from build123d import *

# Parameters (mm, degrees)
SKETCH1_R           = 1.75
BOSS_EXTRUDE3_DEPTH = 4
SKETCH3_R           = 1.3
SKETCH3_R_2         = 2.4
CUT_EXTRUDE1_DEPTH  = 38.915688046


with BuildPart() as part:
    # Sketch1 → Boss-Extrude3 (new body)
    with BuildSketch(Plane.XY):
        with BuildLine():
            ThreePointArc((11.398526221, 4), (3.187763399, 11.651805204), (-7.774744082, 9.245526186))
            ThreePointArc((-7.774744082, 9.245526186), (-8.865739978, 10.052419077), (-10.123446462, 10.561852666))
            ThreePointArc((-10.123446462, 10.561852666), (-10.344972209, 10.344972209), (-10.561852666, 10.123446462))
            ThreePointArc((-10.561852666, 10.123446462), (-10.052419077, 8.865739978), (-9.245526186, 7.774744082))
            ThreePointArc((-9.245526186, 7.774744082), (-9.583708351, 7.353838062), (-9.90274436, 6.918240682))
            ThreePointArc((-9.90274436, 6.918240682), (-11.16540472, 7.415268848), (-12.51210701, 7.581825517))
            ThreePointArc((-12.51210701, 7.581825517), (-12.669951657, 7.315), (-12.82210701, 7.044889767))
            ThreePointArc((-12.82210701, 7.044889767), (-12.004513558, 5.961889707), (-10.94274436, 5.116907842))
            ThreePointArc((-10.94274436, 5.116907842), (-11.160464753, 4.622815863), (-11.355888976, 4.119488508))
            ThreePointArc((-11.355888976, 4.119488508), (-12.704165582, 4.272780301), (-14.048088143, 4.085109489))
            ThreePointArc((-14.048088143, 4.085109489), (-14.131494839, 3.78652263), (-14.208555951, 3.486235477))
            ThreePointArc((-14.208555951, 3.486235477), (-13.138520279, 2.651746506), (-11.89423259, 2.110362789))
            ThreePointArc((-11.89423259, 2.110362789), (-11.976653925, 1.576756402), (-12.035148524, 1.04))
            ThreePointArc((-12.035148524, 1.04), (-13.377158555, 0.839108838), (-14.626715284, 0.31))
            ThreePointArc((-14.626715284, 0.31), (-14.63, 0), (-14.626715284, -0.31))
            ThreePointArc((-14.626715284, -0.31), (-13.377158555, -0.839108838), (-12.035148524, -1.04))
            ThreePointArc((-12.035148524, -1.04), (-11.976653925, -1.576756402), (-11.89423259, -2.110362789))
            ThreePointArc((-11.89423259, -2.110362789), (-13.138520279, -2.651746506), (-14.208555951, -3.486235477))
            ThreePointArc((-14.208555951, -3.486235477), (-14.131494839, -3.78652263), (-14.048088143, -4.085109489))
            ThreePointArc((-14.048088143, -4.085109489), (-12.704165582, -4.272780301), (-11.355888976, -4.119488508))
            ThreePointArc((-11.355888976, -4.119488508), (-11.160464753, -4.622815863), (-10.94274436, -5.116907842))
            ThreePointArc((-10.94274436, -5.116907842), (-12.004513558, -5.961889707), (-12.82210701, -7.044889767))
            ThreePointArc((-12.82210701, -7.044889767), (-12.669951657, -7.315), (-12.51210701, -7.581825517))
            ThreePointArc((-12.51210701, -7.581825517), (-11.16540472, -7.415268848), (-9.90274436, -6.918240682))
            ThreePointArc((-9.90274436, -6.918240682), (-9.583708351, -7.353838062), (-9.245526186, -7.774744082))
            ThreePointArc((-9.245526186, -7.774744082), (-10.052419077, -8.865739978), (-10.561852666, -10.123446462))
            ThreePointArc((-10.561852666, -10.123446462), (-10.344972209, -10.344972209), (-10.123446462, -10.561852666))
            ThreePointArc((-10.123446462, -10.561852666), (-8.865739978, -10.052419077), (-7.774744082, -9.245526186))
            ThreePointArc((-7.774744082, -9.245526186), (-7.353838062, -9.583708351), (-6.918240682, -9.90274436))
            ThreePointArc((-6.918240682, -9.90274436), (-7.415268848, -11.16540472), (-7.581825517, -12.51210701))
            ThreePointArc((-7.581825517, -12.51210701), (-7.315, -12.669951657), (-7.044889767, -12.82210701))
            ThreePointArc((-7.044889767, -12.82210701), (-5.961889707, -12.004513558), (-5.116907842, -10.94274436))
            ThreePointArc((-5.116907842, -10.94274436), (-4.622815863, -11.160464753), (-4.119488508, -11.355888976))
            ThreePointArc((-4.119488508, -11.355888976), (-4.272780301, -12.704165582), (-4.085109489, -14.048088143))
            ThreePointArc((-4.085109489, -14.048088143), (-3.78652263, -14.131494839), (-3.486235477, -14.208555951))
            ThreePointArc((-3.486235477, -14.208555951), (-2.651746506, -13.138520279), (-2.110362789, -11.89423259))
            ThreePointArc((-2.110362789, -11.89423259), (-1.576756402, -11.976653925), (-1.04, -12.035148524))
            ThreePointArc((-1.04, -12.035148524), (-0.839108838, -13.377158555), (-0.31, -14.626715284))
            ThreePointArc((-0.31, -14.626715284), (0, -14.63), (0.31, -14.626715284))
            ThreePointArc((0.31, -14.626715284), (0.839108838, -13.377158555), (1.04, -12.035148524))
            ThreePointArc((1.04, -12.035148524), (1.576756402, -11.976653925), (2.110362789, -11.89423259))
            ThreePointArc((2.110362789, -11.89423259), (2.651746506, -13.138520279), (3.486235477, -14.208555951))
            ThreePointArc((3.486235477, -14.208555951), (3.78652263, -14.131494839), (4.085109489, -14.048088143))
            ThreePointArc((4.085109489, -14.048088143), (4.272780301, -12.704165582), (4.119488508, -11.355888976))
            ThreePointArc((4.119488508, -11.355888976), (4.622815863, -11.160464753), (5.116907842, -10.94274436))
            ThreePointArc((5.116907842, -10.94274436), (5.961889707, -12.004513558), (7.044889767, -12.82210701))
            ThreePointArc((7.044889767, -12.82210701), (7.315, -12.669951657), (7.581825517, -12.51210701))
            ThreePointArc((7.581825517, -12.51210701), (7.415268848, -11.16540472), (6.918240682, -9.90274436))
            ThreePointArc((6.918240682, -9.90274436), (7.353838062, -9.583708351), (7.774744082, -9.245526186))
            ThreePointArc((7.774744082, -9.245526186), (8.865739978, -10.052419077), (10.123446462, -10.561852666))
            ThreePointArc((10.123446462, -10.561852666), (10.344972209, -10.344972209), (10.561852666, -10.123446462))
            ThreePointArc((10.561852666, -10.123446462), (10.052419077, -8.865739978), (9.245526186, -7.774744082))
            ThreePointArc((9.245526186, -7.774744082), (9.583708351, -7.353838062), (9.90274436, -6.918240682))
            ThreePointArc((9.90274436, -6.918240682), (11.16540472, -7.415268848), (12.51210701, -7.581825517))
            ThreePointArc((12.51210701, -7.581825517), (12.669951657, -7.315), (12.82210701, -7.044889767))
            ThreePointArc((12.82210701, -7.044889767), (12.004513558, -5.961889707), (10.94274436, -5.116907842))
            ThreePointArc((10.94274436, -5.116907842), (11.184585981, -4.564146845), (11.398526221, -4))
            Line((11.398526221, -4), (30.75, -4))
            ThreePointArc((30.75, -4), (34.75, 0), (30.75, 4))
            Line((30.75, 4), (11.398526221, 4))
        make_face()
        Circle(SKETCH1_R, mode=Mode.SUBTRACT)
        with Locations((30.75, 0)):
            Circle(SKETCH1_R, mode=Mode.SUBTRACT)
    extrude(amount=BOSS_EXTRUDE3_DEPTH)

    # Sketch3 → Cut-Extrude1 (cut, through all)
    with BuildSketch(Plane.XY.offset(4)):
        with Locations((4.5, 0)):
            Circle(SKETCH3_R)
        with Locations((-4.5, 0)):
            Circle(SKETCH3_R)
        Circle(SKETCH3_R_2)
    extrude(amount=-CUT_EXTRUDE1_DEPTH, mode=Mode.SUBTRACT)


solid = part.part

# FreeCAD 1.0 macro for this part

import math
import FreeCAD as App
import Part
import Sketcher

V = App.Vector

doc = App.newDocument("Part")
body = doc.addObject("PartDesign::Body", "Body")

sketch1 = doc.addObject("Sketcher::SketchObject", "Sketch")
body.addObject(sketch1)
sketch1.AttachmentSupport = (doc.XY_Plane, [""])
sketch1.MapMode = "FlatFace"
sketch1.addGeometry(Part.ArcOfCircle(Part.Circle(V(0, 0, 0), V(0, 0, 1), 12.1), math.radians(19), math.radians(130)), False)
sketch1.addGeometry(Part.ArcOfCircle(Part.Circle(V(-11.5, 5.3, 0), V(0, 0, 1), 5.4), math.radians(46), math.radians(75)), False)
sketch1.addGeometry(Part.ArcOfCircle(Part.Circle(V(0, 0, 0), V(0, 0, 1), 14.6), math.radians(133.79), math.radians(136.21)), False)
sketch1.addGeometry(Part.ArcOfCircle(Part.Circle(V(-5.3, 11.5, 0), V(0, 0, 1), 5.4), math.radians(-165), math.radians(-136)), False)
sketch1.addGeometry(Part.ArcOfCircle(Part.Circle(V(0, 0, 0), V(0, 0, 1), 12.1), math.radians(139.94), math.radians(145.06)), False)
sketch1.addGeometry(Part.ArcOfCircle(Part.Circle(V(-12.5, 2.2, 0), V(0, 0, 1), 5.4), math.radians(61), math.radians(90)), False)
sketch1.addGeometry(Part.ArcOfCircle(Part.Circle(V(0, 0, 0), V(0, 0, 1), 14.6), math.radians(148.79), math.radians(151.21)), False)
sketch1.addGeometry(Part.ArcOfCircle(Part.Circle(V(-8.1, 9.7, 0), V(0, 0, 1), 5.4), math.radians(-150), math.radians(-121)), False)
sketch1.addGeometry(Part.ArcOfCircle(Part.Circle(V(0, 0, 0), V(0, 0, 1), 12.1), math.radians(154.94), math.radians(160.06)), False)
sketch1.addGeometry(Part.ArcOfCircle(Part.Circle(V(-12.6, -1.1, 0), V(0, 0, 1), 5.4), math.radians(76), math.radians(105)), False)
sketch1.addGeometry(Part.ArcOfCircle(Part.Circle(V(0, 0, 0), V(0, 0, 1), 14.6), math.radians(163.79), math.radians(166.21)), False)
sketch1.addGeometry(Part.ArcOfCircle(Part.Circle(V(-10.4, 7.3, 0), V(0, 0, 1), 5.4), math.radians(-135), math.radians(-106)), False)
sketch1.addGeometry(Part.ArcOfCircle(Part.Circle(V(0, 0, 0), V(0, 0, 1), 12.1), math.radians(169.94), math.radians(175.06)), False)
sketch1.addGeometry(Part.ArcOfCircle(Part.Circle(V(-11.9, -4.4, 0), V(0, 0, 1), 5.4), math.radians(91), math.radians(120)), False)
sketch1.addGeometry(Part.ArcOfCircle(Part.Circle(V(0, 0, 0), V(0, 0, 1), 14.6), math.radians(178.79), math.radians(181.21)), False)
sketch1.addGeometry(Part.ArcOfCircle(Part.Circle(V(-11.9, 4.4, 0), V(0, 0, 1), 5.4), math.radians(-120), math.radians(-91)), False)
sketch1.addGeometry(Part.ArcOfCircle(Part.Circle(V(0, 0, 0), V(0, 0, 1), 12.1), math.radians(-175.06), math.radians(-169.94)), False)
sketch1.addGeometry(Part.ArcOfCircle(Part.Circle(V(-10.4, -7.3, 0), V(0, 0, 1), 5.4), math.radians(106), math.radians(135)), False)
sketch1.addGeometry(Part.ArcOfCircle(Part.Circle(V(0, 0, 0), V(0, 0, 1), 14.6), math.radians(-166.21), math.radians(-163.79)), False)
sketch1.addGeometry(Part.ArcOfCircle(Part.Circle(V(-12.6, 1.1, 0), V(0, 0, 1), 5.4), math.radians(-105), math.radians(-76)), False)
sketch1.addGeometry(Part.ArcOfCircle(Part.Circle(V(0, 0, 0), V(0, 0, 1), 12.1), math.radians(-160.06), math.radians(-154.94)), False)
sketch1.addGeometry(Part.ArcOfCircle(Part.Circle(V(-8.1, -9.7, 0), V(0, 0, 1), 5.4), math.radians(121), math.radians(150)), False)
sketch1.addGeometry(Part.ArcOfCircle(Part.Circle(V(0, 0, 0), V(0, 0, 1), 14.6), math.radians(-151.21), math.radians(-148.79)), False)
sketch1.addGeometry(Part.ArcOfCircle(Part.Circle(V(-12.5, -2.2, 0), V(0, 0, 1), 5.4), math.radians(-90), math.radians(-61)), False)
sketch1.addGeometry(Part.ArcOfCircle(Part.Circle(V(0, 0, 0), V(0, 0, 1), 12.1), math.radians(-145.06), math.radians(-139.94)), False)
sketch1.addGeometry(Part.ArcOfCircle(Part.Circle(V(-5.3, -11.5, 0), V(0, 0, 1), 5.4), math.radians(136), math.radians(165)), False)
sketch1.addGeometry(Part.ArcOfCircle(Part.Circle(V(0, 0, 0), V(0, 0, 1), 14.6), math.radians(-136.21), math.radians(-133.79)), False)
sketch1.addGeometry(Part.ArcOfCircle(Part.Circle(V(-11.5, -5.3, 0), V(0, 0, 1), 5.4), math.radians(-75), math.radians(-46)), False)
sketch1.addGeometry(Part.ArcOfCircle(Part.Circle(V(0, 0, 0), V(0, 0, 1), 12.1), math.radians(-130.06), math.radians(-124.94)), False)
sketch1.addGeometry(Part.ArcOfCircle(Part.Circle(V(-2.2, -12.5, 0), V(0, 0, 1), 5.4), math.radians(151), math.radians(180)), False)
sketch1.addGeometry(Part.ArcOfCircle(Part.Circle(V(0, 0, 0), V(0, 0, 1), 14.6), math.radians(-121.21), math.radians(-118.79)), False)
sketch1.addGeometry(Part.ArcOfCircle(Part.Circle(V(-9.7, -8.1, 0), V(0, 0, 1), 5.4), math.radians(-60), math.radians(-31)), False)
sketch1.addGeometry(Part.ArcOfCircle(Part.Circle(V(0, 0, 0), V(0, 0, 1), 12.1), math.radians(-115.06), math.radians(-109.94)), False)
sketch1.addGeometry(Part.ArcOfCircle(Part.Circle(V(1.1, -12.6, 0), V(0, 0, 1), 5.4), math.radians(166), math.radians(195)), False)
sketch1.addGeometry(Part.ArcOfCircle(Part.Circle(V(0, 0, 0), V(0, 0, 1), 14.6), math.radians(-106.21), math.radians(-103.79)), False)
sketch1.addGeometry(Part.ArcOfCircle(Part.Circle(V(-7.3, -10.4, 0), V(0, 0, 1), 5.4), math.radians(-45), math.radians(-16)), False)
sketch1.addGeometry(Part.ArcOfCircle(Part.Circle(V(0, 0, 0), V(0, 0, 1), 12.1), math.radians(-100.06), math.radians(-94.94)), False)
sketch1.addGeometry(Part.ArcOfCircle(Part.Circle(V(4.4, -11.9, 0), V(0, 0, 1), 5.4), math.radians(-179), math.radians(-150)), False)
sketch1.addGeometry(Part.ArcOfCircle(Part.Circle(V(0, 0, 0), V(0, 0, 1), 14.6), math.radians(-91.21), math.radians(-88.79)), False)
sketch1.addGeometry(Part.ArcOfCircle(Part.Circle(V(-4.4, -11.9, 0), V(0, 0, 1), 5.4), math.radians(-30), math.radians(-1)), False)
sketch1.addGeometry(Part.ArcOfCircle(Part.Circle(V(0, 0, 0), V(0, 0, 1), 12.1), math.radians(-85.06), math.radians(-79.94)), False)
sketch1.addGeometry(Part.ArcOfCircle(Part.Circle(V(7.3, -10.4, 0), V(0, 0, 1), 5.4), math.radians(-164), math.radians(-135)), False)
sketch1.addGeometry(Part.ArcOfCircle(Part.Circle(V(0, 0, 0), V(0, 0, 1), 14.6), math.radians(-76.21), math.radians(-73.79)), False)
sketch1.addGeometry(Part.ArcOfCircle(Part.Circle(V(-1.1, -12.6, 0), V(0, 0, 1), 5.4), math.radians(-15), math.radians(14)), False)
sketch1.addGeometry(Part.ArcOfCircle(Part.Circle(V(0, 0, 0), V(0, 0, 1), 12.1), math.radians(-70.06), math.radians(-64.94)), False)
sketch1.addGeometry(Part.ArcOfCircle(Part.Circle(V(9.7, -8.1, 0), V(0, 0, 1), 5.4), math.radians(-149), math.radians(-120)), False)
sketch1.addGeometry(Part.ArcOfCircle(Part.Circle(V(0, 0, 0), V(0, 0, 1), 14.6), math.radians(-61.21), math.radians(-58.79)), False)
sketch1.addGeometry(Part.ArcOfCircle(Part.Circle(V(2.2, -12.5, 0), V(0, 0, 1), 5.4), math.radians(0), math.radians(29)), False)
sketch1.addGeometry(Part.ArcOfCircle(Part.Circle(V(0, 0, 0), V(0, 0, 1), 12.1), math.radians(-55.06), math.radians(-49.94)), False)
sketch1.addGeometry(Part.ArcOfCircle(Part.Circle(V(11.5, -5.3, 0), V(0, 0, 1), 5.4), math.radians(-134), math.radians(-105)), False)
sketch1.addGeometry(Part.ArcOfCircle(Part.Circle(V(0, 0, 0), V(0, 0, 1), 14.6), math.radians(-46.21), math.radians(-43.79)), False)
sketch1.addGeometry(Part.ArcOfCircle(Part.Circle(V(5.3, -11.5, 0), V(0, 0, 1), 5.4), math.radians(15), math.radians(44)), False)
sketch1.addGeometry(Part.ArcOfCircle(Part.Circle(V(0, 0, 0), V(0, 0, 1), 12.1), math.radians(-40.06), math.radians(-34.94)), False)
sketch1.addGeometry(Part.ArcOfCircle(Part.Circle(V(12.5, -2.2, 0), V(0, 0, 1), 5.4), math.radians(-119), math.radians(-90)), False)
sketch1.addGeometry(Part.ArcOfCircle(Part.Circle(V(0, 0, 0), V(0, 0, 1), 14.6), math.radians(-31.21), math.radians(-28.79)), False)
sketch1.addGeometry(Part.ArcOfCircle(Part.Circle(V(8.1, -9.7, 0), V(0, 0, 1), 5.4), math.radians(30), math.radians(59)), False)
sketch1.addGeometry(Part.ArcOfCircle(Part.Circle(V(0, 0, 0), V(0, 0, 1), 12.1), math.radians(-25.06), math.radians(-19.34)), False)
sketch1.addGeometry(Part.LineSegment(V(11.4, -4, 0), V(30.8, -4, 0)), False)
sketch1.addGeometry(Part.ArcOfCircle(Part.Circle(V(30.8, 0, 0), V(0, 0, 1), 4), math.radians(-90), math.radians(90)), False)
sketch1.addGeometry(Part.LineSegment(V(30.8, 4, 0), V(11.4, 4, 0)), False)
sketch1.addGeometry(Part.Circle(V(0, 0, 0), V(0, 0, 1), 1.8), False)
sketch1.addGeometry(Part.Circle(V(30.8, 0, 0), V(0, 0, 1), 1.8), False)
sketch1.addConstraint(Sketcher.Constraint("Coincident", 0, 2, 1, 1))
sketch1.addConstraint(Sketcher.Constraint("Coincident", 1, 2, 2, 1))
sketch1.addConstraint(Sketcher.Constraint("Coincident", 2, 2, 3, 1))
sketch1.addConstraint(Sketcher.Constraint("Coincident", 3, 2, 4, 1))
sketch1.addConstraint(Sketcher.Constraint("Coincident", 4, 2, 5, 1))
sketch1.addConstraint(Sketcher.Constraint("Coincident", 5, 2, 6, 1))
sketch1.addConstraint(Sketcher.Constraint("Coincident", 6, 2, 7, 1))
sketch1.addConstraint(Sketcher.Constraint("Coincident", 7, 2, 8, 1))
sketch1.addConstraint(Sketcher.Constraint("Coincident", 8, 2, 9, 1))
sketch1.addConstraint(Sketcher.Constraint("Coincident", 9, 2, 10, 1))
sketch1.addConstraint(Sketcher.Constraint("Coincident", 10, 2, 11, 1))
sketch1.addConstraint(Sketcher.Constraint("Coincident", 11, 2, 12, 1))
sketch1.addConstraint(Sketcher.Constraint("Coincident", 12, 2, 13, 1))
sketch1.addConstraint(Sketcher.Constraint("Coincident", 13, 2, 14, 1))
sketch1.addConstraint(Sketcher.Constraint("Coincident", 14, 2, 15, 1))
sketch1.addConstraint(Sketcher.Constraint("Coincident", 15, 2, 16, 1))
sketch1.addConstraint(Sketcher.Constraint("Coincident", 16, 2, 17, 1))
sketch1.addConstraint(Sketcher.Constraint("Coincident", 17, 2, 18, 1))
sketch1.addConstraint(Sketcher.Constraint("Coincident", 18, 2, 19, 1))
sketch1.addConstraint(Sketcher.Constraint("Coincident", 19, 2, 20, 1))
sketch1.addConstraint(Sketcher.Constraint("Coincident", 20, 2, 21, 1))
sketch1.addConstraint(Sketcher.Constraint("Coincident", 21, 2, 22, 1))
sketch1.addConstraint(Sketcher.Constraint("Coincident", 22, 2, 23, 1))
sketch1.addConstraint(Sketcher.Constraint("Coincident", 23, 2, 24, 1))
sketch1.addConstraint(Sketcher.Constraint("Coincident", 24, 2, 25, 1))
sketch1.addConstraint(Sketcher.Constraint("Coincident", 25, 2, 26, 1))
sketch1.addConstraint(Sketcher.Constraint("Coincident", 26, 2, 27, 1))
sketch1.addConstraint(Sketcher.Constraint("Coincident", 27, 2, 28, 1))
sketch1.addConstraint(Sketcher.Constraint("Coincident", 28, 2, 29, 1))
sketch1.addConstraint(Sketcher.Constraint("Coincident", 29, 2, 30, 1))
sketch1.addConstraint(Sketcher.Constraint("Coincident", 30, 2, 31, 1))
sketch1.addConstraint(Sketcher.Constraint("Coincident", 31, 2, 32, 1))
sketch1.addConstraint(Sketcher.Constraint("Coincident", 32, 2, 33, 1))
sketch1.addConstraint(Sketcher.Constraint("Coincident", 33, 2, 34, 1))
sketch1.addConstraint(Sketcher.Constraint("Coincident", 34, 2, 35, 1))
sketch1.addConstraint(Sketcher.Constraint("Coincident", 35, 2, 36, 1))
sketch1.addConstraint(Sketcher.Constraint("Coincident", 36, 2, 37, 1))
sketch1.addConstraint(Sketcher.Constraint("Coincident", 37, 2, 38, 1))
sketch1.addConstraint(Sketcher.Constraint("Coincident", 38, 2, 39, 1))
sketch1.addConstraint(Sketcher.Constraint("Coincident", 39, 2, 40, 1))
sketch1.addConstraint(Sketcher.Constraint("Coincident", 40, 2, 41, 1))
sketch1.addConstraint(Sketcher.Constraint("Coincident", 41, 2, 42, 1))
sketch1.addConstraint(Sketcher.Constraint("Coincident", 42, 2, 43, 1))
sketch1.addConstraint(Sketcher.Constraint("Coincident", 43, 2, 44, 1))
sketch1.addConstraint(Sketcher.Constraint("Coincident", 44, 2, 45, 1))
sketch1.addConstraint(Sketcher.Constraint("Coincident", 45, 2, 46, 1))
sketch1.addConstraint(Sketcher.Constraint("Coincident", 46, 2, 47, 1))
sketch1.addConstraint(Sketcher.Constraint("Coincident", 47, 2, 48, 1))
sketch1.addConstraint(Sketcher.Constraint("Coincident", 48, 2, 49, 1))
sketch1.addConstraint(Sketcher.Constraint("Coincident", 49, 2, 50, 1))
sketch1.addConstraint(Sketcher.Constraint("Coincident", 50, 2, 51, 1))
sketch1.addConstraint(Sketcher.Constraint("Coincident", 51, 2, 52, 1))
sketch1.addConstraint(Sketcher.Constraint("Coincident", 52, 2, 53, 1))
sketch1.addConstraint(Sketcher.Constraint("Coincident", 53, 2, 54, 1))
sketch1.addConstraint(Sketcher.Constraint("Coincident", 54, 2, 55, 1))
sketch1.addConstraint(Sketcher.Constraint("Coincident", 55, 2, 56, 1))
sketch1.addConstraint(Sketcher.Constraint("Coincident", 56, 2, 57, 1))
sketch1.addConstraint(Sketcher.Constraint("Tangent", 57, 2, 58, 1))
sketch1.addConstraint(Sketcher.Constraint("Tangent", 58, 2, 59, 1))
sketch1.addConstraint(Sketcher.Constraint("Coincident", 59, 2, 0, 1))
sketch1.addConstraint(Sketcher.Constraint("Horizontal", 57))
sketch1.addConstraint(Sketcher.Constraint("Horizontal", 59))
sketch1.addConstraint(Sketcher.Constraint("Coincident", 0, 3, -1, 1))
sketch1.addConstraint(Sketcher.Constraint("Coincident", 2, 3, -1, 1))
sketch1.addConstraint(Sketcher.Constraint("Coincident", 4, 3, -1, 1))
sketch1.addConstraint(Sketcher.Constraint("Coincident", 6, 3, -1, 1))
sketch1.addConstraint(Sketcher.Constraint("Coincident", 8, 3, -1, 1))
sketch1.addConstraint(Sketcher.Constraint("Coincident", 10, 3, -1, 1))
sketch1.addConstraint(Sketcher.Constraint("Coincident", 12, 3, -1, 1))
sketch1.addConstraint(Sketcher.Constraint("Coincident", 14, 3, -1, 1))
sketch1.addConstraint(Sketcher.Constraint("Coincident", 16, 3, -1, 1))
sketch1.addConstraint(Sketcher.Constraint("Coincident", 18, 3, -1, 1))
sketch1.addConstraint(Sketcher.Constraint("Coincident", 20, 3, -1, 1))
sketch1.addConstraint(Sketcher.Constraint("Coincident", 22, 3, -1, 1))
sketch1.addConstraint(Sketcher.Constraint("Coincident", 24, 3, -1, 1))
sketch1.addConstraint(Sketcher.Constraint("Coincident", 26, 3, -1, 1))
sketch1.addConstraint(Sketcher.Constraint("Coincident", 28, 3, -1, 1))
sketch1.addConstraint(Sketcher.Constraint("Coincident", 30, 3, -1, 1))
sketch1.addConstraint(Sketcher.Constraint("Coincident", 32, 3, -1, 1))
sketch1.addConstraint(Sketcher.Constraint("Coincident", 34, 3, -1, 1))
sketch1.addConstraint(Sketcher.Constraint("Coincident", 36, 3, -1, 1))
sketch1.addConstraint(Sketcher.Constraint("Coincident", 38, 3, -1, 1))
sketch1.addConstraint(Sketcher.Constraint("Coincident", 40, 3, -1, 1))
sketch1.addConstraint(Sketcher.Constraint("Coincident", 42, 3, -1, 1))
sketch1.addConstraint(Sketcher.Constraint("Coincident", 44, 3, -1, 1))
sketch1.addConstraint(Sketcher.Constraint("Coincident", 46, 3, -1, 1))
sketch1.addConstraint(Sketcher.Constraint("Coincident", 48, 3, -1, 1))
sketch1.addConstraint(Sketcher.Constraint("Coincident", 50, 3, -1, 1))
sketch1.addConstraint(Sketcher.Constraint("Coincident", 52, 3, -1, 1))
sketch1.addConstraint(Sketcher.Constraint("Coincident", 54, 3, -1, 1))
sketch1.addConstraint(Sketcher.Constraint("Coincident", 56, 3, -1, 1))
sketch1.addConstraint(Sketcher.Constraint("Coincident", 60, 3, -1, 1))
sketch1.addConstraint(Sketcher.Constraint("Coincident", 61, 3, 58, 3))
sketch1.addConstraint(Sketcher.Constraint("Equal", 1, 3))
sketch1.addConstraint(Sketcher.Constraint("Equal", 0, 4))
sketch1.addConstraint(Sketcher.Constraint("Equal", 3, 5))
sketch1.addConstraint(Sketcher.Constraint("Equal", 5, 7))
sketch1.addConstraint(Sketcher.Constraint("Equal", 4, 8))
sketch1.addConstraint(Sketcher.Constraint("Equal", 7, 9))
sketch1.addConstraint(Sketcher.Constraint("Equal", 6, 10))
sketch1.addConstraint(Sketcher.Constraint("Equal", 9, 11))
sketch1.addConstraint(Sketcher.Constraint("Equal", 8, 12))
sketch1.addConstraint(Sketcher.Constraint("Equal", 11, 13))
sketch1.addConstraint(Sketcher.Constraint("Equal", 10, 14))
sketch1.addConstraint(Sketcher.Constraint("Equal", 13, 15))
sketch1.addConstraint(Sketcher.Constraint("Equal", 12, 16))
sketch1.addConstraint(Sketcher.Constraint("Equal", 15, 17))
sketch1.addConstraint(Sketcher.Constraint("Equal", 14, 18))
sketch1.addConstraint(Sketcher.Constraint("Equal", 17, 19))
sketch1.addConstraint(Sketcher.Constraint("Equal", 16, 20))
sketch1.addConstraint(Sketcher.Constraint("Equal", 19, 21))
sketch1.addConstraint(Sketcher.Constraint("Equal", 18, 22))
sketch1.addConstraint(Sketcher.Constraint("Equal", 21, 23))
sketch1.addConstraint(Sketcher.Constraint("Equal", 20, 24))
sketch1.addConstraint(Sketcher.Constraint("Equal", 23, 25))
sketch1.addConstraint(Sketcher.Constraint("Equal", 18, 26))
sketch1.addConstraint(Sketcher.Constraint("Equal", 25, 27))
sketch1.addConstraint(Sketcher.Constraint("Equal", 24, 28))
sketch1.addConstraint(Sketcher.Constraint("Equal", 27, 29))
sketch1.addConstraint(Sketcher.Constraint("Equal", 22, 30))
sketch1.addConstraint(Sketcher.Constraint("Equal", 29, 31))
sketch1.addConstraint(Sketcher.Constraint("Equal", 28, 32))
sketch1.addConstraint(Sketcher.Constraint("Equal", 31, 33))
sketch1.addConstraint(Sketcher.Constraint("Equal", 30, 34))
sketch1.addConstraint(Sketcher.Constraint("Equal", 33, 35))
sketch1.addConstraint(Sketcher.Constraint("Equal", 32, 36))
sketch1.addConstraint(Sketcher.Constraint("Equal", 35, 37))
sketch1.addConstraint(Sketcher.Constraint("Equal", 34, 38))
sketch1.addConstraint(Sketcher.Constraint("Equal", 37, 39))
sketch1.addConstraint(Sketcher.Constraint("Equal", 36, 40))
sketch1.addConstraint(Sketcher.Constraint("Equal", 39, 41))
sketch1.addConstraint(Sketcher.Constraint("Equal", 38, 42))
sketch1.addConstraint(Sketcher.Constraint("Equal", 41, 43))
sketch1.addConstraint(Sketcher.Constraint("Equal", 40, 44))
sketch1.addConstraint(Sketcher.Constraint("Equal", 43, 45))
sketch1.addConstraint(Sketcher.Constraint("Equal", 42, 46))
sketch1.addConstraint(Sketcher.Constraint("Equal", 45, 47))
sketch1.addConstraint(Sketcher.Constraint("Equal", 44, 48))
sketch1.addConstraint(Sketcher.Constraint("Equal", 47, 49))
sketch1.addConstraint(Sketcher.Constraint("Equal", 42, 50))
sketch1.addConstraint(Sketcher.Constraint("Equal", 49, 51))
sketch1.addConstraint(Sketcher.Constraint("Equal", 48, 52))
sketch1.addConstraint(Sketcher.Constraint("Equal", 51, 53))
sketch1.addConstraint(Sketcher.Constraint("Equal", 46, 54))
sketch1.addConstraint(Sketcher.Constraint("Equal", 53, 55))
sketch1.addConstraint(Sketcher.Constraint("Equal", 52, 56))
sketch1.addConstraint(Sketcher.Constraint("Equal", 60, 61))
sketch1.addConstraint(Sketcher.Constraint("Symmetric", 1, 3, 49, 3, -1, 1))
sketch1.addConstraint(Sketcher.Constraint("Symmetric", 3, 3, 51, 3, -1, 1))
sketch1.addConstraint(Sketcher.Constraint("Symmetric", 5, 3, 53, 3, -1, 1))
sketch1.addConstraint(Sketcher.Constraint("Symmetric", 7, 3, 55, 3, -1, 1))
sketch1.addConstraint(Sketcher.Constraint("Symmetric", 37, 3, 39, 3, -2))
sketch1.addConstraint(Sketcher.Constraint("Symmetric", 35, 3, 41, 3, -2))
sketch1.addConstraint(Sketcher.Constraint("Symmetric", 33, 3, 43, 3, -2))
sketch1.addConstraint(Sketcher.Constraint("Symmetric", 31, 3, 45, 3, -2))
sketch1.addConstraint(Sketcher.Constraint("Symmetric", 29, 3, 47, 3, -2))
sketch1.addConstraint(Sketcher.Constraint("Symmetric", 27, 3, 49, 3, -2))
sketch1.addConstraint(Sketcher.Constraint("Symmetric", 25, 3, 51, 3, -2))
sketch1.addConstraint(Sketcher.Constraint("Symmetric", 23, 3, 53, 3, -2))
sketch1.addConstraint(Sketcher.Constraint("Symmetric", 21, 3, 55, 3, -2))
sketch1.addConstraint(Sketcher.Constraint("Symmetric", 13, 3, 15, 3, -1))
sketch1.addConstraint(Sketcher.Constraint("Symmetric", 11, 3, 17, 3, -1))
sketch1.addConstraint(Sketcher.Constraint("Symmetric", 9, 3, 19, 3, -1))
sketch1.addConstraint(Sketcher.Constraint("PointOnObject", 58, 3, -1))
sketch1.addConstraint(Sketcher.Constraint("Vertical", 2, 2, 25, 2))
sketch1.addConstraint(Sketcher.Constraint("Radius", 58, 4.0))
sketch1.addConstraint(Sketcher.Constraint("Diameter", 60, 3.5))
sketch1.addConstraint(Sketcher.Constraint("Radius", 1, 5.4))
sketch1.addConstraint(Sketcher.Constraint("Radius", 0, 12.08))
sketch1.addConstraint(Sketcher.Constraint("Radius", 2, 14.63))
sketch1.addConstraint(Sketcher.Constraint("DistanceX", -1, 1, 58, 3, 30.75))
sketch1.addConstraint(Sketcher.Constraint("DistanceY", -1, 1, 12, 2, 1.04))
sketch1.addConstraint(Sketcher.Constraint("DistanceY", -1, 1, 13, 2, 0.31))
sketch1.addConstraint(Sketcher.Constraint("DistanceX", 36, 2, -1, 1, 1.04))
sketch1.addConstraint(Sketcher.Constraint("DistanceX", 37, 2, -1, 1, 0.31))
sketch1.addConstraint(Sketcher.Constraint("DistanceY", -1, 1, 7, 3, 9.731199))
sketch1.addConstraint(Sketcher.Constraint("DistanceX", 31, 3, -1, 1, 9.731199))
sketch1.addConstraint(Sketcher.Constraint("DistanceX", 5, 3, -1, 1, 12.496311))
sketch1.addConstraint(Sketcher.Constraint("DistanceY", -1, 1, 5, 3, 2.181849))
sketch1.addConstraint(Sketcher.Constraint("DistanceY", 9, 3, -1, 1, 1.126779))
sketch1.addConstraint(Sketcher.Constraint("DistanceX", 29, 3, -1, 1, 2.181849))
sketch1.addConstraint(Sketcher.Constraint("DistanceY", 29, 3, -1, 1, 12.496311))
sketch1.addConstraint(Sketcher.Constraint("DistanceX", -1, 1, 33, 3, 1.126779))
sketch1.addConstraint(Sketcher.Constraint("DistanceY", -1, 1, 6, 2, 7.04489))
sketch1.addConstraint(Sketcher.Constraint("DistanceX", 8, 2, -1, 1, 11.355889))
sketch1.addConstraint(Sketcher.Constraint("DistanceX", 30, 2, -1, 1, 7.04489))
sketch1.addConstraint(Sketcher.Constraint("DistanceX", 32, 2, -1, 1, 4.119489))
sketch1.addConstraint(Sketcher.Constraint("DistanceX", 1, 3, -1, 1, 11.505806))
sketch1.addConstraint(Sketcher.Constraint("DistanceY", -1, 1, 1, 3, 5.341787))
sketch1.addConstraint(Sketcher.Constraint("DistanceX", 3, 3, -1, 1, 5.341787))
sketch1.addConstraint(Sketcher.Constraint("DistanceY", -1, 1, 3, 3, 11.505806))
sketch1.addConstraint(Sketcher.Constraint("DistanceX", 11, 3, -1, 1, 10.379027))
sketch1.addConstraint(Sketcher.Constraint("DistanceY", -1, 1, 11, 3, 7.293427))
sketch1.addConstraint(Sketcher.Constraint("DistanceX", 35, 3, -1, 1, 7.293427))
sketch1.addConstraint(Sketcher.Constraint("DistanceY", 35, 3, -1, 1, 10.379027))
pad1 = doc.addObject("PartDesign::Pad", "Pad")
body.addObject(pad1)
pad1.Profile = sketch1
pad1.Length = 4

sketch2 = doc.addObject("Sketcher::SketchObject", "Sketch001")
body.addObject(sketch2)
sketch2.AttachmentSupport = (doc.XY_Plane, [""])
sketch2.MapMode = "FlatFace"
sketch2.AttachmentOffset = App.Placement(V(0, 0, 4), App.Rotation())
sketch2.addGeometry(Part.Circle(V(4.5, 0, 0), V(0, 0, 1), 1.3), False)
sketch2.addGeometry(Part.Circle(V(-4.5, 0, 0), V(0, 0, 1), 1.3), False)
sketch2.addGeometry(Part.Circle(V(0, 0, 0), V(0, 0, 1), 2.4), False)
sketch2.addConstraint(Sketcher.Constraint("Coincident", 2, 3, -1, 1))
sketch2.addConstraint(Sketcher.Constraint("Equal", 0, 1))
sketch2.addConstraint(Sketcher.Constraint("Symmetric", 0, 3, 1, 3, -1, 1))
sketch2.addConstraint(Sketcher.Constraint("PointOnObject", 0, 3, -1))
sketch2.addConstraint(Sketcher.Constraint("Diameter", 0, 2.6))
sketch2.addConstraint(Sketcher.Constraint("Diameter", 2, 4.8))
sketch2.addConstraint(Sketcher.Constraint("DistanceX", 1, 3, 0, 3, 9.0))
pocket1 = doc.addObject("PartDesign::Pocket", "Pocket")
body.addObject(pocket1)
pocket1.Profile = sketch2
pocket1.Type = "ThroughAll"

doc.recompute()
